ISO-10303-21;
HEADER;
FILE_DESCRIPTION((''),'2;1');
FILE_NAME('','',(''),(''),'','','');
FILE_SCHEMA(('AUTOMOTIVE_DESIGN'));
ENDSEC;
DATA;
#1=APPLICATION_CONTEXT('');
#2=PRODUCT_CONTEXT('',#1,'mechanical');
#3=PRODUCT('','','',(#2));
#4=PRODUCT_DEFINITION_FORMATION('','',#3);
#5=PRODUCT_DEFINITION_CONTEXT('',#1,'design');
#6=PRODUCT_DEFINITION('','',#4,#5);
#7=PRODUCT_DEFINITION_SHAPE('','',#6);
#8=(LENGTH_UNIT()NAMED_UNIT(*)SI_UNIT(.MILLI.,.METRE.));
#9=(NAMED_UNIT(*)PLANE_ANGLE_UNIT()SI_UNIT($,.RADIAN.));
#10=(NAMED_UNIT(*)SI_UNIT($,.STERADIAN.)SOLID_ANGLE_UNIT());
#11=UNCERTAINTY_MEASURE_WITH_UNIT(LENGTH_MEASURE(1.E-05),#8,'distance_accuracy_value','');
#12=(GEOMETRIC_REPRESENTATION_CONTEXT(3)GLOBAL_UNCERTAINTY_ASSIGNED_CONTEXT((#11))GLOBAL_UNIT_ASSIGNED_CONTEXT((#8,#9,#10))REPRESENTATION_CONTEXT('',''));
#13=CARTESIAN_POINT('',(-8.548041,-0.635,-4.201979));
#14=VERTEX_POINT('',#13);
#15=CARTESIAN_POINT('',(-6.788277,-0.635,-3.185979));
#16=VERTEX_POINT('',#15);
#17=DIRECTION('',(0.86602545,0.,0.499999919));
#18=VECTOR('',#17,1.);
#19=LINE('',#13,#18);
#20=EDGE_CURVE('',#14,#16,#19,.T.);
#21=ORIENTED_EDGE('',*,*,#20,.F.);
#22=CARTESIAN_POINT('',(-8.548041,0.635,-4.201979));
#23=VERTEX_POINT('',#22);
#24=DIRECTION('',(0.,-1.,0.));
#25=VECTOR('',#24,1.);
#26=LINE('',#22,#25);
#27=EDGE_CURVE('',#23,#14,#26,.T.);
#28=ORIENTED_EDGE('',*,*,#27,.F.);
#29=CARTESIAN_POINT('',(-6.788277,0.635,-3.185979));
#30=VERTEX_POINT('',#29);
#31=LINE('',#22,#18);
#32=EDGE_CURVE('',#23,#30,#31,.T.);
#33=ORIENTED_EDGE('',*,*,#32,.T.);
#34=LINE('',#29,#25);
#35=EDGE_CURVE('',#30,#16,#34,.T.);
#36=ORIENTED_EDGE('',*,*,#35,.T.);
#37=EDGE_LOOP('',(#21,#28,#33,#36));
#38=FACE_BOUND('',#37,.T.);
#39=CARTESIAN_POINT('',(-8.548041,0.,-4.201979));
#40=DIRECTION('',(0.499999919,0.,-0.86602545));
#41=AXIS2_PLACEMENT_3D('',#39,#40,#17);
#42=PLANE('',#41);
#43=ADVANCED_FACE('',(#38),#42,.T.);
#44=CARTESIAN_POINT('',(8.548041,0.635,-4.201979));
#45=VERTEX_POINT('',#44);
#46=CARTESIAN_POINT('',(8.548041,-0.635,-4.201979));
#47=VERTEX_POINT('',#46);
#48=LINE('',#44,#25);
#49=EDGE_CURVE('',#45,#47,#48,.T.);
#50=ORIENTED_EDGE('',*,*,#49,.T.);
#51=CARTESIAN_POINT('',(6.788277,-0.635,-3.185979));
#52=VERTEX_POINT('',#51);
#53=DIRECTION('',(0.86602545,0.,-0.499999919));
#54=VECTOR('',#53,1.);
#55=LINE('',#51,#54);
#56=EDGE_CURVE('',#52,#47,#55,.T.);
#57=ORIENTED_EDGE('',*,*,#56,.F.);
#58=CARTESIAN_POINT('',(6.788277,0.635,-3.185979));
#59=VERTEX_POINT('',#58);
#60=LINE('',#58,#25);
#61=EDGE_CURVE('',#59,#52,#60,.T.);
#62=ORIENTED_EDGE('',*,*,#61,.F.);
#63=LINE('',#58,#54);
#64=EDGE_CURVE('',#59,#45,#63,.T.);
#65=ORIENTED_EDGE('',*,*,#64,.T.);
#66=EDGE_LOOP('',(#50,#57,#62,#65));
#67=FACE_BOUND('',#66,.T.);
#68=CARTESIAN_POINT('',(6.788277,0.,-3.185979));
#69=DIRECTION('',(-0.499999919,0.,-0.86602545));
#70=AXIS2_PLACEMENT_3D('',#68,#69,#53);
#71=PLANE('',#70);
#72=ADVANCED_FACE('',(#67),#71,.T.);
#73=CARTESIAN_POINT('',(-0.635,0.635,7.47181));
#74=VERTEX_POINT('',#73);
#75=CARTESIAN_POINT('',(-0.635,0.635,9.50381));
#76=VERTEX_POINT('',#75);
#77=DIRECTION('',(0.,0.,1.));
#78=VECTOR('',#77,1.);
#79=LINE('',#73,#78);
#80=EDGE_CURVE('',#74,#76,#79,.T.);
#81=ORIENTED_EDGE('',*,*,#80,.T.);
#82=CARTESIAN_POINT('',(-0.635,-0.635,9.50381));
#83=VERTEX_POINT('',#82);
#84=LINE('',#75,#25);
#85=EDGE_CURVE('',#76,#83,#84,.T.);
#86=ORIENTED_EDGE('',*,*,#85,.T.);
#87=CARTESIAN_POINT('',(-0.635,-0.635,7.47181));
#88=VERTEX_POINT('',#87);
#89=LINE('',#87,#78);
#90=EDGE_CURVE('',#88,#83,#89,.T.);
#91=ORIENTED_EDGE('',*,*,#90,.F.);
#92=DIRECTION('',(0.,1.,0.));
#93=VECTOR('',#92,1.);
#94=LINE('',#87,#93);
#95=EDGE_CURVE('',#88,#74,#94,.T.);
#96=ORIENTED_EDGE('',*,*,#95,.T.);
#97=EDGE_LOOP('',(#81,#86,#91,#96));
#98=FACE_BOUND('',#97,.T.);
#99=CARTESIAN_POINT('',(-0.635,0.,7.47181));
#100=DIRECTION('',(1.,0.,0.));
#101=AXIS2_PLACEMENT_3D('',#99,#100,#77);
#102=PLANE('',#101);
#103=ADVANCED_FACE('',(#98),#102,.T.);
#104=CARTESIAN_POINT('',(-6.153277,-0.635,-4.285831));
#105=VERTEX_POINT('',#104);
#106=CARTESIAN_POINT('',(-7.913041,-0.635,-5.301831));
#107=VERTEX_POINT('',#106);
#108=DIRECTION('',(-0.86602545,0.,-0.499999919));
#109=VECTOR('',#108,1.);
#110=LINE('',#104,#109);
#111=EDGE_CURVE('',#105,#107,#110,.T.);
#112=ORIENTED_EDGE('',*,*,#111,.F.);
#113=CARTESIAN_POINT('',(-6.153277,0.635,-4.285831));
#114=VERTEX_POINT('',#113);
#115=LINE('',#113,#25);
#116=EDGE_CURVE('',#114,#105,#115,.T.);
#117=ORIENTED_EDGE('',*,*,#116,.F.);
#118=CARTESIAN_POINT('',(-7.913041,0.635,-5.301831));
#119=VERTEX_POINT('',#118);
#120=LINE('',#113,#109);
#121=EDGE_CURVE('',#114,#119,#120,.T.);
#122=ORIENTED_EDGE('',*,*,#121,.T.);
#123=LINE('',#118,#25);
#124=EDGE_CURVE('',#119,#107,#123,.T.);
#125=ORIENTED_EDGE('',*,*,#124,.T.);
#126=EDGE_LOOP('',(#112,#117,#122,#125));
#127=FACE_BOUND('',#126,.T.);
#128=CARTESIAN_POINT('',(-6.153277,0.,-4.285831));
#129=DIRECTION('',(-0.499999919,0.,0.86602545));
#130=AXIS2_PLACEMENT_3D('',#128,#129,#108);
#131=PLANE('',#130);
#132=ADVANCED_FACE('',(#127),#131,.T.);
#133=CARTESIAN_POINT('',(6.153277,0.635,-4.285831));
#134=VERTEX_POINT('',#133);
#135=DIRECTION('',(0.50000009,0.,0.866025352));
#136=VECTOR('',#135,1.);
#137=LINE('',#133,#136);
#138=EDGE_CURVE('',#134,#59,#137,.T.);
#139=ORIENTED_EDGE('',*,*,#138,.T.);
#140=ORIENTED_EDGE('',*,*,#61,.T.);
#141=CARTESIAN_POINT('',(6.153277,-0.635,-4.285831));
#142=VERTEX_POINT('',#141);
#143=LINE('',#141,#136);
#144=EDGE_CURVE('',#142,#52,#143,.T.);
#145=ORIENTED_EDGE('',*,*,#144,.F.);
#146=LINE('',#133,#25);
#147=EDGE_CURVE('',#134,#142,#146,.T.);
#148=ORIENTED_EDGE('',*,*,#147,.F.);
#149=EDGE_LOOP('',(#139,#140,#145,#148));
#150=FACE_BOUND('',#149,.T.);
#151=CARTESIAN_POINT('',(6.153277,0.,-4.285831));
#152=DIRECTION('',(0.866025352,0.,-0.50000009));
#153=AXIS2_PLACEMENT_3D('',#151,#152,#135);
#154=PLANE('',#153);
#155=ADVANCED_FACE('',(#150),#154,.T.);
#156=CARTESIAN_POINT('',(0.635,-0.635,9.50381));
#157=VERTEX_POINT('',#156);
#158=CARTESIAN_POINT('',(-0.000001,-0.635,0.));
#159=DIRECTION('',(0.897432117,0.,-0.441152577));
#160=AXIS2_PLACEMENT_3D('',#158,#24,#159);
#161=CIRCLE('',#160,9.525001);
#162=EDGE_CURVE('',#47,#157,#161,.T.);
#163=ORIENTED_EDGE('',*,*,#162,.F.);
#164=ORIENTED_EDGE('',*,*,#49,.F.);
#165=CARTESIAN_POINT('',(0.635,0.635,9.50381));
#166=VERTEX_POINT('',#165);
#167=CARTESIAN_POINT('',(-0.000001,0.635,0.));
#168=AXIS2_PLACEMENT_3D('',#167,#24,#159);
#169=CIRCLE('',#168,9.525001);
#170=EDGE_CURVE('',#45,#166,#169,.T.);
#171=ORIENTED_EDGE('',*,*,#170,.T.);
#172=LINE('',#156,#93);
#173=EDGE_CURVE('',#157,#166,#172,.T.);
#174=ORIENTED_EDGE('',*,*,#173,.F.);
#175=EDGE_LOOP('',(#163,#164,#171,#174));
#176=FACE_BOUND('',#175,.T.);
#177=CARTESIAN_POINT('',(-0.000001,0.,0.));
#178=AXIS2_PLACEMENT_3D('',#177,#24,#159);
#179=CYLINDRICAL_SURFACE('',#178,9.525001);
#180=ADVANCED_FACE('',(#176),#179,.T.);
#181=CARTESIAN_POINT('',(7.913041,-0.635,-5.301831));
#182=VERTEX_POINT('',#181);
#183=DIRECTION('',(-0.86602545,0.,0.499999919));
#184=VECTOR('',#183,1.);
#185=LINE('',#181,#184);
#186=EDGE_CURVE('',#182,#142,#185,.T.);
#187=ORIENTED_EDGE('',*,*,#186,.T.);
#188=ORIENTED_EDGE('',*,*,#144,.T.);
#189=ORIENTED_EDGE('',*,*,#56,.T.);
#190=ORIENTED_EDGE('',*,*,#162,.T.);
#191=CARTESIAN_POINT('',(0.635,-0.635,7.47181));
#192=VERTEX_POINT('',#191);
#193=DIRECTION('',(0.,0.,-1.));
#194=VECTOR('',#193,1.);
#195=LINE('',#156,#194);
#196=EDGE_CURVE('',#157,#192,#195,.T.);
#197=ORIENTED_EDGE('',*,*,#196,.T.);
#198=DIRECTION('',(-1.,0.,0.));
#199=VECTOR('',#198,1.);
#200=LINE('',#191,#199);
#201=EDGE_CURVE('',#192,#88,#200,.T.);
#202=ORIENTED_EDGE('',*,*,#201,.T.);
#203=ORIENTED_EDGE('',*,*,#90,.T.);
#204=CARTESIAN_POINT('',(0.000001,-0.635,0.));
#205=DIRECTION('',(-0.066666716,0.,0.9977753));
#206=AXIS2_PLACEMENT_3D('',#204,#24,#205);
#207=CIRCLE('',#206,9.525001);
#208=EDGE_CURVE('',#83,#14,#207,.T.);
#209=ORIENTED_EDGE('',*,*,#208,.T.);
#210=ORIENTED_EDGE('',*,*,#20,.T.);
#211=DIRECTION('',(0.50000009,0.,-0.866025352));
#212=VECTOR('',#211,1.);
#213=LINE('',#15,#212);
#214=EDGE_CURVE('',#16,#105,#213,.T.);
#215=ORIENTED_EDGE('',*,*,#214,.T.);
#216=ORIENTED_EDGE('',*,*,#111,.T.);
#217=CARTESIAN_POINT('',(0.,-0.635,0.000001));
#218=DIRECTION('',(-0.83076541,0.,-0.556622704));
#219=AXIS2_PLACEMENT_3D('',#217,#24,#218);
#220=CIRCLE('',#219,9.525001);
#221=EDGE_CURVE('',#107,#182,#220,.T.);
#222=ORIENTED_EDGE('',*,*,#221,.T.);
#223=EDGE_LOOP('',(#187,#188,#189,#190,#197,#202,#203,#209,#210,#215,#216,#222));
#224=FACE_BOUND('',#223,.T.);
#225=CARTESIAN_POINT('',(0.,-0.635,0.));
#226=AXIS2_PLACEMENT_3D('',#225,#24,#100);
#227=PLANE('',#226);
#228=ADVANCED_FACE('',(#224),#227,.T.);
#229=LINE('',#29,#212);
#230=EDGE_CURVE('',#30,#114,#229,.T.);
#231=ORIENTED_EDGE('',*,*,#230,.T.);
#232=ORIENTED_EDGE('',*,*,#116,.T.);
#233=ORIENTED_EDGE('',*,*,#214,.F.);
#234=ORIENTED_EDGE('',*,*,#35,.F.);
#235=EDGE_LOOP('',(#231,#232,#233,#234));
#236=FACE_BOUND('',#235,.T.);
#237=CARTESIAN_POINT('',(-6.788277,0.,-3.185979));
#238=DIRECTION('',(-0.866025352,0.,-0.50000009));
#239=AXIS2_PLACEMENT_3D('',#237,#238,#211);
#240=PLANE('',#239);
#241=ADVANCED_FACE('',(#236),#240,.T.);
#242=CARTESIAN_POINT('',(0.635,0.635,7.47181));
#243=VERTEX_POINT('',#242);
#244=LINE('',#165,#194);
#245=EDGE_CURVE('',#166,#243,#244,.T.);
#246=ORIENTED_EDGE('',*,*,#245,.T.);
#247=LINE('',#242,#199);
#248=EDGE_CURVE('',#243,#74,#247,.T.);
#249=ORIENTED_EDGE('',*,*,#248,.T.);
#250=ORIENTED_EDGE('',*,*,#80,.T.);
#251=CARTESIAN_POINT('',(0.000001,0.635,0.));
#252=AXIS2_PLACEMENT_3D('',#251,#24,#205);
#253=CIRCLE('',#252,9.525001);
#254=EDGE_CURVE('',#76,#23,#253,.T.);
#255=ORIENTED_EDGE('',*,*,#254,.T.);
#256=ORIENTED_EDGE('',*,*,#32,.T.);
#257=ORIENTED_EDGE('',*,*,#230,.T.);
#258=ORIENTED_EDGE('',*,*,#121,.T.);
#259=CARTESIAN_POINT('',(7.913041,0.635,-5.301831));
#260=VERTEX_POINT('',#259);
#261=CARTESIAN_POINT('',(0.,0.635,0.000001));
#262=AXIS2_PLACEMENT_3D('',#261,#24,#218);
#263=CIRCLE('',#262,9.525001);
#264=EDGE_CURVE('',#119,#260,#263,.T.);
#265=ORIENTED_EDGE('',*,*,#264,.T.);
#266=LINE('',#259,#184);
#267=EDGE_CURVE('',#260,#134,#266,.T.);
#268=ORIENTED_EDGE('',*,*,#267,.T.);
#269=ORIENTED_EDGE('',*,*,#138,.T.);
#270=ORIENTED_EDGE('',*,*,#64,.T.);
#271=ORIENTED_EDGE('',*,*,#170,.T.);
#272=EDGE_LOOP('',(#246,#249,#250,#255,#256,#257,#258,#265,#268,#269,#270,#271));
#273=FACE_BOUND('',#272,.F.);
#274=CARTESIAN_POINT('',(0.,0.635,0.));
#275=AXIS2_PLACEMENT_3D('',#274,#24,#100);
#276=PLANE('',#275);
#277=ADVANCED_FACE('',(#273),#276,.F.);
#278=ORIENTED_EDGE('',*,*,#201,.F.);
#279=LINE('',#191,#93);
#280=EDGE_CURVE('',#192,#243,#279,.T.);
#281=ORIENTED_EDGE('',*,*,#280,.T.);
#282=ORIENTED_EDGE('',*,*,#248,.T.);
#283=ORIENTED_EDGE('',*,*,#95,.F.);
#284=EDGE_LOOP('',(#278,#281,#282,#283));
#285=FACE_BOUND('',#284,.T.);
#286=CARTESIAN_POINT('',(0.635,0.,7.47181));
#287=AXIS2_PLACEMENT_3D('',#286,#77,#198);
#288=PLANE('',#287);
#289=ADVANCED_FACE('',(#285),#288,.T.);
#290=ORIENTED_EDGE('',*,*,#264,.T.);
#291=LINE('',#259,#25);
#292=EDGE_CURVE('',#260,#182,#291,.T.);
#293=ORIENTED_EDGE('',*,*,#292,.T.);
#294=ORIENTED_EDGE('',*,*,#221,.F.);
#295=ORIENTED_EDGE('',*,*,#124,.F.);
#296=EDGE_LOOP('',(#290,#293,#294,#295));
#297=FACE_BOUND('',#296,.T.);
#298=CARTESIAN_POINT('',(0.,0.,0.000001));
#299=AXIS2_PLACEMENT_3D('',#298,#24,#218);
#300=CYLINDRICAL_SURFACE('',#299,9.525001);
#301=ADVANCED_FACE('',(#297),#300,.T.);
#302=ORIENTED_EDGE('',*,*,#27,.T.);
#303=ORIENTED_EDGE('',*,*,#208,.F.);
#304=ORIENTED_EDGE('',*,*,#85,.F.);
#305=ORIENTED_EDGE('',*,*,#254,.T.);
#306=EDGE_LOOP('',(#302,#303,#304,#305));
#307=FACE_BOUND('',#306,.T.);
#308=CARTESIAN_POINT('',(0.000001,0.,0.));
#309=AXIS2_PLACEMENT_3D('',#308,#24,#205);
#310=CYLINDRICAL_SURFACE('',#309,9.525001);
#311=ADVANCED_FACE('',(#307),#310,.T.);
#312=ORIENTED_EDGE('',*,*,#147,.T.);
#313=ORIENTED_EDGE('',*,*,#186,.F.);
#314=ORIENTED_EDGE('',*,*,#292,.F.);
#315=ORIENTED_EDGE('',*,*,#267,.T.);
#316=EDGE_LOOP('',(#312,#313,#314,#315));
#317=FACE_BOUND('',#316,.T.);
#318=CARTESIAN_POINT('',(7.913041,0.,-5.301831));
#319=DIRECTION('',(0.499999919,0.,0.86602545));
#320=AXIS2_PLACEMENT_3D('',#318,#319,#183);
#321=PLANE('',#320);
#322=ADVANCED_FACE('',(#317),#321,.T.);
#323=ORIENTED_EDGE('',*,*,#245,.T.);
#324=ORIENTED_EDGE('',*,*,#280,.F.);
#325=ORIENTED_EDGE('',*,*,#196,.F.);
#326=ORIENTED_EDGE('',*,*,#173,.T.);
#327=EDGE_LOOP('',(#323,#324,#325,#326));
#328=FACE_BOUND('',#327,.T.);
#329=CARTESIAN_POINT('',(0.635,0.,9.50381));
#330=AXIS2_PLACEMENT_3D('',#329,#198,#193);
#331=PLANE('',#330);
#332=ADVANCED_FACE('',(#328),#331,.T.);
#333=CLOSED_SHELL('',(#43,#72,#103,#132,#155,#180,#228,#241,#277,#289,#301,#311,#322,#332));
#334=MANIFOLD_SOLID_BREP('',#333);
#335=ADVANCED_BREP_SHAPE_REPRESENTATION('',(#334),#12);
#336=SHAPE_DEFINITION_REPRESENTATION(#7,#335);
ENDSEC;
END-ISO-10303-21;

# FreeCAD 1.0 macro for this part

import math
import FreeCAD as App
import Part
import Sketcher
from FreeCAD import Vector
Q = App.Units.Quantity

doc = App.newDocument("Part")
body = doc.addObject("PartDesign::Body", "Body")

sketch1 = body.newObject("Sketcher::SketchObject", "Sketch")
sketch1.AttachmentSupport = (doc.getObject("XZ_Plane"), [""])
sketch1.MapMode = "FlatFace"
sketch1.addGeometry(Part.LineSegment(Vector(-0.6, 7.5, 0), Vector(-0.6, 9.5, 0)), False)
sketch1.addGeometry(Part.ArcOfCircle(Part.Circle(Vector(0, 0, 0), Vector(0, 0, 1), 9.5), math.radians(94), math.radians(206)), False)
sketch1.addGeometry(Part.LineSegment(Vector(-8.5, -4.2, 0), Vector(-6.8, -3.2, 0)), False)
sketch1.addGeometry(Part.LineSegment(Vector(-6.8, -3.2, 0), Vector(-6.2, -4.3, 0)), False)
sketch1.addGeometry(Part.LineSegment(Vector(-6.2, -4.3, 0), Vector(-7.9, -5.3, 0)), False)
sketch1.addGeometry(Part.ArcOfCircle(Part.Circle(Vector(0, 0, 0), Vector(0, 0, 1), 9.5), math.radians(-146), math.radians(-34)), False)
sketch1.addGeometry(Part.LineSegment(Vector(7.9, -5.3, 0), Vector(6.2, -4.3, 0)), False)
sketch1.addGeometry(Part.LineSegment(Vector(6.2, -4.3, 0), Vector(6.8, -3.2, 0)), False)
sketch1.addGeometry(Part.LineSegment(Vector(6.8, -3.2, 0), Vector(8.5, -4.2, 0)), False)
sketch1.addGeometry(Part.ArcOfCircle(Part.Circle(Vector(0, 0, 0), Vector(0, 0, 1), 9.5), math.radians(-26), math.radians(86)), False)
sketch1.addGeometry(Part.LineSegment(Vector(0.6, 9.5, 0), Vector(0.6, 7.5, 0)), False)
sketch1.addGeometry(Part.LineSegment(Vector(0.6, 7.5, 0), Vector(-0.6, 7.5, 0)), False)
sketch1.addConstraint(Sketcher.Constraint("Coincident", 0, 2, 1, 1))
sketch1.addConstraint(Sketcher.Constraint("Coincident", 1, 2, 2, 1))
sketch1.addConstraint(Sketcher.Constraint("Coincident", 2, 2, 3, 1))
sketch1.addConstraint(Sketcher.Constraint("Coincident", 3, 2, 4, 1))
sketch1.addConstraint(Sketcher.Constraint("Coincident", 4, 2, 5, 1))
sketch1.addConstraint(Sketcher.Constraint("Coincident", 5, 2, 6, 1))
sketch1.addConstraint(Sketcher.Constraint("Coincident", 6, 2, 7, 1))
sketch1.addConstraint(Sketcher.Constraint("Coincident", 7, 2, 8, 1))
sketch1.addConstraint(Sketcher.Constraint("Coincident", 8, 2, 9, 1))
sketch1.addConstraint(Sketcher.Constraint("Coincident", 9, 2, 10, 1))
sketch1.addConstraint(Sketcher.Constraint("Coincident", 10, 2, 11, 1))
sketch1.addConstraint(Sketcher.Constraint("Coincident", 11, 2, 0, 1))
sketch1.addConstraint(Sketcher.Constraint("Vertical", 0))
sketch1.addConstraint(Sketcher.Constraint("Vertical", 10))
sketch1.addConstraint(Sketcher.Constraint("Horizontal", 11))
sketch1.addConstraint(Sketcher.Constraint("Coincident", 1, 3, -1, 1))
sketch1.addConstraint(Sketcher.Constraint("Coincident", 5, 3, -1, 1))
sketch1.addConstraint(Sketcher.Constraint("Coincident", 9, 3, -1, 1))
sketch1.addConstraint(Sketcher.Constraint("Equal", 1, 5))
sketch1.addConstraint(Sketcher.Constraint("Equal", 5, 9))
sketch1.addConstraint(Sketcher.Constraint("Symmetric", 3, 2, 6, 2, -2))
sketch1.addConstraint(Sketcher.Constraint("Symmetric", 2, 2, 7, 2, -2))
sketch1.addConstraint(Sketcher.Constraint("Perpendicular", 2, 3))
sketch1.addConstraint(Sketcher.Constraint("Perpendicular", 3, 4))
sketch1.addConstraint(Sketcher.Constraint("Perpendicular", 6, 7))
sketch1.addConstraint(Sketcher.Constraint("Perpendicular", 7, 8))
sketch1.addConstraint(Sketcher.Constraint("Horizontal", 0, 2, 9, 2))
sketch1.addConstraint(Sketcher.Constraint("Equal", 2, 4))
sketch1.addConstraint(Sketcher.Constraint("Angle", 2, Q("29.999995 deg")))
sketch1.addConstraint(Sketcher.Constraint("Radius", 1, Q("0.375 in")))
sketch1.addConstraint(Sketcher.Constraint("DistanceX", 11, 2, 11, 1, Q("0.05 in")))
sketch1.addConstraint(Sketcher.Constraint("DistanceY", 0, 1, 0, 2, Q("0.08 in")))
sketch1.addConstraint(Sketcher.Constraint("Distance", 2, Q("0.08 in")))
sketch1.addConstraint(Sketcher.Constraint("Distance", 3, Q("0.05 in")))
pad1 = body.newObject("PartDesign::Pad", "Pad")
pad1.Profile = sketch1
pad1.Length = Q("0.05 in")
pad1.Midplane = True

doc.recompute()
